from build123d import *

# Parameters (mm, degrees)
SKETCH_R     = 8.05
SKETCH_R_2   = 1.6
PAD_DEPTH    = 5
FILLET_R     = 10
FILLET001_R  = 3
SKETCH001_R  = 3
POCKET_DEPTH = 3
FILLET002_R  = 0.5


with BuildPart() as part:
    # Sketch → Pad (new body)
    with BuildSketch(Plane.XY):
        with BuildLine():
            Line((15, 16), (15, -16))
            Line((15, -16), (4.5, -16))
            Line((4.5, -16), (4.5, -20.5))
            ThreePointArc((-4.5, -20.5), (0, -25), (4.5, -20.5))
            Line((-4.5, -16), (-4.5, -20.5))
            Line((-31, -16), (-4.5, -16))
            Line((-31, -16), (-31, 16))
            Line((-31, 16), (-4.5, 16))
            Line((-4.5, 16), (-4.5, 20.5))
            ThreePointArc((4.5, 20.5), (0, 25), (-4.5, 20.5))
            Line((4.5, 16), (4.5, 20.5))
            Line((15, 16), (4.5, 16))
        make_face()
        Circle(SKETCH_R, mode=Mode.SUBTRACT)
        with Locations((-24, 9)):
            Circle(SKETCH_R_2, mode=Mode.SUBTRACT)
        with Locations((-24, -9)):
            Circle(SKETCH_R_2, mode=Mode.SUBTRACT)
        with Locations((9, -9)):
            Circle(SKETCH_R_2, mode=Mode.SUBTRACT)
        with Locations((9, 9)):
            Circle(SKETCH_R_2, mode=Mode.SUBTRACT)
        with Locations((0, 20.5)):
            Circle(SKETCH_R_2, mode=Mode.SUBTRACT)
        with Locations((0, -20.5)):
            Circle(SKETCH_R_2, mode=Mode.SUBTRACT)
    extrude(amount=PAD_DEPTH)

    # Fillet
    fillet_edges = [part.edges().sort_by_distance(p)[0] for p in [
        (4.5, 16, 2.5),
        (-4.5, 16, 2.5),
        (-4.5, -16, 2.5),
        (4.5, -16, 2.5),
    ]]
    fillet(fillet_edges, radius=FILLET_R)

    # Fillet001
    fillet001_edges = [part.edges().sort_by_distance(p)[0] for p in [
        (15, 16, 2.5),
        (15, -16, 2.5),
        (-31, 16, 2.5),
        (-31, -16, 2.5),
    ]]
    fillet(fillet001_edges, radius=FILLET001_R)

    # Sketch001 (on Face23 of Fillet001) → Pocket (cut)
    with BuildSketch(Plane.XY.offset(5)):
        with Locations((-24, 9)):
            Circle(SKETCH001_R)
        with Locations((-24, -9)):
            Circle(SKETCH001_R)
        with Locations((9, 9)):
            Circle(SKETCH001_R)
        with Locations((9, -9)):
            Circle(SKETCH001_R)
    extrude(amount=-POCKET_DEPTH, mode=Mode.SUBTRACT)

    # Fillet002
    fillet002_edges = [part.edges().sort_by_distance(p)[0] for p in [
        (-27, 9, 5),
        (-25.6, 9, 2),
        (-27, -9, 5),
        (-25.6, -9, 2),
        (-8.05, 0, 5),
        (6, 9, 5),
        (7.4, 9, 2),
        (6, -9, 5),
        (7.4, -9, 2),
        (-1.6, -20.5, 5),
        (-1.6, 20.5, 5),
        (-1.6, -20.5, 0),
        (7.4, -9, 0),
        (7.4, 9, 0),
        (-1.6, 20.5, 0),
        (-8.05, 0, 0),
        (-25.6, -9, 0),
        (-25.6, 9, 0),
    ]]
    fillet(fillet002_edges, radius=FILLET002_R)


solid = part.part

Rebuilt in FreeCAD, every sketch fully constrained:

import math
import FreeCAD as App
import Part
import Sketcher
Q = App.Units.Quantity


def edges_at(feature, points):
    """Names of the edges that pass closest to the given points."""
    edges = feature.Shape.Edges
    near = lambda p: min(range(len(edges)), key=lambda i: edges[i].distToShape(Part.Vertex(*p))[0])
    return sorted({f"Edge{near(p) + 1}" for p in points})

doc = App.newDocument("Part")
body = doc.addObject("PartDesign::Body", "Body")

# Sketch on XY plane
sketch1 = body.newObject("Sketcher::SketchObject", "Sketch")
sketch1.AttachmentSupport = (doc.getObject("XY_Plane"), [""])
sketch1.MapMode = "FlatFace"
sketch1.addGeometry([
    Part.LineSegment(App.Vector(15, -16, 0), App.Vector(15, 16, 0)),  # 0
    Part.LineSegment(App.Vector(15, 16, 0), App.Vector(4.5, 16, 0)),  # 1
    Part.LineSegment(App.Vector(4.5, 16, 0), App.Vector(4.5, 20.5, 0)),  # 2
    Part.ArcOfCircle(Part.Circle(App.Vector(0, 20.5, 0), App.Vector(0, 0, 1), 4.5), math.radians(0), math.radians(180)),  # 3
    Part.LineSegment(App.Vector(-4.5, 20.5, 0), App.Vector(-4.5, 16, 0)),  # 4
    Part.LineSegment(App.Vector(-4.5, 16, 0), App.Vector(-31, 16, 0)),  # 5
    Part.LineSegment(App.Vector(-31, 16, 0), App.Vector(-31, -16, 0)),  # 6
    Part.LineSegment(App.Vector(-31, -16, 0), App.Vector(-4.5, -16, 0)),  # 7
    Part.LineSegment(App.Vector(-4.5, -16, 0), App.Vector(-4.5, -20.5, 0)),  # 8
    Part.ArcOfCircle(Part.Circle(App.Vector(0, -20.5, 0), App.Vector(0, 0, 1), 4.5), math.radians(180), math.radians(360)),  # 9
    Part.LineSegment(App.Vector(4.5, -20.5, 0), App.Vector(4.5, -16, 0)),  # 10
    Part.LineSegment(App.Vector(4.5, -16, 0), App.Vector(15, -16, 0)),  # 11
    Part.Circle(App.Vector(0, -20.5, 0), App.Vector(0, 0, 1), 1.6),  # 12
    Part.Circle(App.Vector(9, -9, 0), App.Vector(0, 0, 1), 1.6),  # 13
    Part.Circle(App.Vector(-24, -9, 0), App.Vector(0, 0, 1), 1.6),  # 14
    Part.Circle(App.Vector(9, 9, 0), App.Vector(0, 0, 1), 1.6),  # 15
    Part.Circle(App.Vector(0, 0, 0), App.Vector(0, 0, 1), 8.1),  # 16
    Part.Circle(App.Vector(0, 20.5, 0), App.Vector(0, 0, 1), 1.6),  # 17
    Part.Circle(App.Vector(-24, 9, 0), App.Vector(0, 0, 1), 1.6),  # 18
], False)
sketch1.addConstraint([
    Sketcher.Constraint("Coincident", 0, 2, 1, 1),
    Sketcher.Constraint("Coincident", 1, 2, 2, 1),
    Sketcher.Constraint("Tangent", 2, 2, 3, 1),
    Sketcher.Constraint("Tangent", 3, 2, 4, 1),
    Sketcher.Constraint("Coincident", 4, 2, 5, 1),
    Sketcher.Constraint("Coincident", 5, 2, 6, 1),
    Sketcher.Constraint("Coincident", 6, 2, 7, 1),
    Sketcher.Constraint("Coincident", 7, 2, 8, 1),
    Sketcher.Constraint("Tangent", 8, 2, 9, 1),
    Sketcher.Constraint("Tangent", 9, 2, 10, 1),
    Sketcher.Constraint("Coincident", 10, 2, 11, 1),
    Sketcher.Constraint("Coincident", 11, 2, 0, 1),
    Sketcher.Constraint("Vertical", 0),
    Sketcher.Constraint("Horizontal", 1),
    Sketcher.Constraint("Vertical", 2),
    Sketcher.Constraint("Vertical", 4),
    Sketcher.Constraint("Horizontal", 5),
    Sketcher.Constraint("Vertical", 6),
    Sketcher.Constraint("Horizontal", 7),
    Sketcher.Constraint("Vertical", 8),
    Sketcher.Constraint("Vertical", 10),
    Sketcher.Constraint("Horizontal", 11),
    Sketcher.Constraint("Coincident", 16, 3, -1, 1),
    Sketcher.Constraint("Coincident", 12, 3, 9, 3),
    Sketcher.Constraint("Coincident", 17, 3, 3, 3),
    Sketcher.Constraint("Equal", 3, 9),
    Sketcher.Constraint("Equal", 12, 13),
    Sketcher.Constraint("Equal", 13, 14),
    Sketcher.Constraint("Equal", 14, 15),
    Sketcher.Constraint("Equal", 15, 17),
    Sketcher.Constraint("Equal", 17, 18),
    Sketcher.Constraint("Symmetric", 3, 3, 9, 3, -1, 1),
    Sketcher.Constraint("Symmetric", 1, 2, 4, 2, -2),
    Sketcher.Constraint("Symmetric", 13, 3, 15, 3, -1),
    Sketcher.Constraint("Symmetric", 14, 3, 18, 3, -1),
    Sketcher.Constraint("Horizontal", 13, 3, 14, 3),
    Sketcher.Constraint("Horizontal", 7, 2, 10, 2),
    Sketcher.Constraint("Equal", 4, 8),
    Sketcher.Constraint("Diameter", 12, Q("3.2 mm")),
    Sketcher.Constraint("Diameter", 16, Q("16.1 mm")),
    Sketcher.Constraint("Radius", 3, Q("4.5 mm")),
    Sketcher.Constraint("DistanceY", 0, 1, 0, 2, Q("32 mm")),
    Sketcher.Constraint("DistanceX", 1, 2, 1, 1, Q("10.5 mm")),
    Sketcher.Constraint("DistanceX", 5, 2, 5, 1, Q("26.5 mm")),
    Sketcher.Constraint("DistanceY", 2, 1, 2, 2, Q("4.5 mm")),
    Sketcher.Constraint("DistanceX", -1, 1, 13, 3, Q("9 mm")),
    Sketcher.Constraint("DistanceY", 13, 3, -1, 1, Q("9 mm")),
    Sketcher.Constraint("DistanceX", 14, 3, -1, 1, Q("24 mm")),
])
pad1 = body.newObject("PartDesign::Pad", "Pad")
pad1.Profile = sketch1
pad1.Length = 5
doc.recompute()

fillet = body.newObject("PartDesign::Fillet", "Fillet")
fillet.Base = (pad1, edges_at(pad1, [
    (4.5, 16, 2.5),
    (-4.5, 16, 2.5),
    (-4.5, -16, 2.5),
    (4.5, -16, 2.5),
]))
fillet.Radius = 10
doc.recompute()

fillet2 = body.newObject("PartDesign::Fillet", "Fillet001")
fillet2.Base = (fillet, edges_at(fillet, [
    (15, 16, 2.5),
    (15, -16, 2.5),
    (-31, 16, 2.5),
    (-31, -16, 2.5),
]))
fillet2.Radius = 3

# Sketch on XY plane
sketch2 = body.newObject("Sketcher::SketchObject", "Sketch001")
sketch2.AttachmentSupport = (doc.getObject("XY_Plane"), [""])
sketch2.MapMode = "FlatFace"
sketch2.AttachmentOffset = App.Placement(App.Vector(0, 0, 5), App.Rotation())
sketch2.addGeometry([
    Part.Circle(App.Vector(-24, 9, 0), App.Vector(0, 0, 1), 3),
    Part.Circle(App.Vector(-24, -9, 0), App.Vector(0, 0, 1), 3),
    Part.Circle(App.Vector(9, 9, 0), App.Vector(0, 0, 1), 3),
    Part.Circle(App.Vector(9, -9, 0), App.Vector(0, 0, 1), 3),
], False)
sketch2.addConstraint([
    Sketcher.Constraint("Equal", 0, 1),
    Sketcher.Constraint("Equal", 1, 2),
    Sketcher.Constraint("Equal", 2, 3),
    Sketcher.Constraint("Symmetric", 0, 3, 1, 3, -1),
    Sketcher.Constraint("Symmetric", 2, 3, 3, 3, -1),
    Sketcher.Constraint("Horizontal", 0, 3, 2, 3),
    Sketcher.Constraint("Diameter", 0, Q("6 mm")),
    Sketcher.Constraint("DistanceX", 0, 3, -1, 1, Q("24 mm")),
    Sketcher.Constraint("DistanceY", -1, 1, 0, 3, Q("9 mm")),
    Sketcher.Constraint("DistanceX", -1, 1, 2, 3, Q("9 mm")),
])
pocket1 = body.newObject("PartDesign::Pocket", "Pocket")
pocket1.Profile = sketch2
pocket1.Length = 3
doc.recompute()

fillet3 = body.newObject("PartDesign::Fillet", "Fillet002")
fillet3.Base = (pocket1, edges_at(pocket1, [
    (-27, 9, 5),
    (-25.6, 9, 2),
    (-27, -9, 5),
    (-25.6, -9, 2),
    (-8.05, 0, 5),
    (6, 9, 5),
    (7.4, 9, 2),
    (6, -9, 5),
    (7.4, -9, 2),
    (-1.6, -20.5, 5),
    (-1.6, 20.5, 5),
    (-1.6, -20.5, 0),
    (7.4, -9, 0),
    (7.4, 9, 0),
    (-1.6, 20.5, 0),
    (-8.05, 0, 0),
    (-25.6, -9, 0),
    (-25.6, 9, 0),
]))
fillet3.Radius = 0.5

doc.recompute()
